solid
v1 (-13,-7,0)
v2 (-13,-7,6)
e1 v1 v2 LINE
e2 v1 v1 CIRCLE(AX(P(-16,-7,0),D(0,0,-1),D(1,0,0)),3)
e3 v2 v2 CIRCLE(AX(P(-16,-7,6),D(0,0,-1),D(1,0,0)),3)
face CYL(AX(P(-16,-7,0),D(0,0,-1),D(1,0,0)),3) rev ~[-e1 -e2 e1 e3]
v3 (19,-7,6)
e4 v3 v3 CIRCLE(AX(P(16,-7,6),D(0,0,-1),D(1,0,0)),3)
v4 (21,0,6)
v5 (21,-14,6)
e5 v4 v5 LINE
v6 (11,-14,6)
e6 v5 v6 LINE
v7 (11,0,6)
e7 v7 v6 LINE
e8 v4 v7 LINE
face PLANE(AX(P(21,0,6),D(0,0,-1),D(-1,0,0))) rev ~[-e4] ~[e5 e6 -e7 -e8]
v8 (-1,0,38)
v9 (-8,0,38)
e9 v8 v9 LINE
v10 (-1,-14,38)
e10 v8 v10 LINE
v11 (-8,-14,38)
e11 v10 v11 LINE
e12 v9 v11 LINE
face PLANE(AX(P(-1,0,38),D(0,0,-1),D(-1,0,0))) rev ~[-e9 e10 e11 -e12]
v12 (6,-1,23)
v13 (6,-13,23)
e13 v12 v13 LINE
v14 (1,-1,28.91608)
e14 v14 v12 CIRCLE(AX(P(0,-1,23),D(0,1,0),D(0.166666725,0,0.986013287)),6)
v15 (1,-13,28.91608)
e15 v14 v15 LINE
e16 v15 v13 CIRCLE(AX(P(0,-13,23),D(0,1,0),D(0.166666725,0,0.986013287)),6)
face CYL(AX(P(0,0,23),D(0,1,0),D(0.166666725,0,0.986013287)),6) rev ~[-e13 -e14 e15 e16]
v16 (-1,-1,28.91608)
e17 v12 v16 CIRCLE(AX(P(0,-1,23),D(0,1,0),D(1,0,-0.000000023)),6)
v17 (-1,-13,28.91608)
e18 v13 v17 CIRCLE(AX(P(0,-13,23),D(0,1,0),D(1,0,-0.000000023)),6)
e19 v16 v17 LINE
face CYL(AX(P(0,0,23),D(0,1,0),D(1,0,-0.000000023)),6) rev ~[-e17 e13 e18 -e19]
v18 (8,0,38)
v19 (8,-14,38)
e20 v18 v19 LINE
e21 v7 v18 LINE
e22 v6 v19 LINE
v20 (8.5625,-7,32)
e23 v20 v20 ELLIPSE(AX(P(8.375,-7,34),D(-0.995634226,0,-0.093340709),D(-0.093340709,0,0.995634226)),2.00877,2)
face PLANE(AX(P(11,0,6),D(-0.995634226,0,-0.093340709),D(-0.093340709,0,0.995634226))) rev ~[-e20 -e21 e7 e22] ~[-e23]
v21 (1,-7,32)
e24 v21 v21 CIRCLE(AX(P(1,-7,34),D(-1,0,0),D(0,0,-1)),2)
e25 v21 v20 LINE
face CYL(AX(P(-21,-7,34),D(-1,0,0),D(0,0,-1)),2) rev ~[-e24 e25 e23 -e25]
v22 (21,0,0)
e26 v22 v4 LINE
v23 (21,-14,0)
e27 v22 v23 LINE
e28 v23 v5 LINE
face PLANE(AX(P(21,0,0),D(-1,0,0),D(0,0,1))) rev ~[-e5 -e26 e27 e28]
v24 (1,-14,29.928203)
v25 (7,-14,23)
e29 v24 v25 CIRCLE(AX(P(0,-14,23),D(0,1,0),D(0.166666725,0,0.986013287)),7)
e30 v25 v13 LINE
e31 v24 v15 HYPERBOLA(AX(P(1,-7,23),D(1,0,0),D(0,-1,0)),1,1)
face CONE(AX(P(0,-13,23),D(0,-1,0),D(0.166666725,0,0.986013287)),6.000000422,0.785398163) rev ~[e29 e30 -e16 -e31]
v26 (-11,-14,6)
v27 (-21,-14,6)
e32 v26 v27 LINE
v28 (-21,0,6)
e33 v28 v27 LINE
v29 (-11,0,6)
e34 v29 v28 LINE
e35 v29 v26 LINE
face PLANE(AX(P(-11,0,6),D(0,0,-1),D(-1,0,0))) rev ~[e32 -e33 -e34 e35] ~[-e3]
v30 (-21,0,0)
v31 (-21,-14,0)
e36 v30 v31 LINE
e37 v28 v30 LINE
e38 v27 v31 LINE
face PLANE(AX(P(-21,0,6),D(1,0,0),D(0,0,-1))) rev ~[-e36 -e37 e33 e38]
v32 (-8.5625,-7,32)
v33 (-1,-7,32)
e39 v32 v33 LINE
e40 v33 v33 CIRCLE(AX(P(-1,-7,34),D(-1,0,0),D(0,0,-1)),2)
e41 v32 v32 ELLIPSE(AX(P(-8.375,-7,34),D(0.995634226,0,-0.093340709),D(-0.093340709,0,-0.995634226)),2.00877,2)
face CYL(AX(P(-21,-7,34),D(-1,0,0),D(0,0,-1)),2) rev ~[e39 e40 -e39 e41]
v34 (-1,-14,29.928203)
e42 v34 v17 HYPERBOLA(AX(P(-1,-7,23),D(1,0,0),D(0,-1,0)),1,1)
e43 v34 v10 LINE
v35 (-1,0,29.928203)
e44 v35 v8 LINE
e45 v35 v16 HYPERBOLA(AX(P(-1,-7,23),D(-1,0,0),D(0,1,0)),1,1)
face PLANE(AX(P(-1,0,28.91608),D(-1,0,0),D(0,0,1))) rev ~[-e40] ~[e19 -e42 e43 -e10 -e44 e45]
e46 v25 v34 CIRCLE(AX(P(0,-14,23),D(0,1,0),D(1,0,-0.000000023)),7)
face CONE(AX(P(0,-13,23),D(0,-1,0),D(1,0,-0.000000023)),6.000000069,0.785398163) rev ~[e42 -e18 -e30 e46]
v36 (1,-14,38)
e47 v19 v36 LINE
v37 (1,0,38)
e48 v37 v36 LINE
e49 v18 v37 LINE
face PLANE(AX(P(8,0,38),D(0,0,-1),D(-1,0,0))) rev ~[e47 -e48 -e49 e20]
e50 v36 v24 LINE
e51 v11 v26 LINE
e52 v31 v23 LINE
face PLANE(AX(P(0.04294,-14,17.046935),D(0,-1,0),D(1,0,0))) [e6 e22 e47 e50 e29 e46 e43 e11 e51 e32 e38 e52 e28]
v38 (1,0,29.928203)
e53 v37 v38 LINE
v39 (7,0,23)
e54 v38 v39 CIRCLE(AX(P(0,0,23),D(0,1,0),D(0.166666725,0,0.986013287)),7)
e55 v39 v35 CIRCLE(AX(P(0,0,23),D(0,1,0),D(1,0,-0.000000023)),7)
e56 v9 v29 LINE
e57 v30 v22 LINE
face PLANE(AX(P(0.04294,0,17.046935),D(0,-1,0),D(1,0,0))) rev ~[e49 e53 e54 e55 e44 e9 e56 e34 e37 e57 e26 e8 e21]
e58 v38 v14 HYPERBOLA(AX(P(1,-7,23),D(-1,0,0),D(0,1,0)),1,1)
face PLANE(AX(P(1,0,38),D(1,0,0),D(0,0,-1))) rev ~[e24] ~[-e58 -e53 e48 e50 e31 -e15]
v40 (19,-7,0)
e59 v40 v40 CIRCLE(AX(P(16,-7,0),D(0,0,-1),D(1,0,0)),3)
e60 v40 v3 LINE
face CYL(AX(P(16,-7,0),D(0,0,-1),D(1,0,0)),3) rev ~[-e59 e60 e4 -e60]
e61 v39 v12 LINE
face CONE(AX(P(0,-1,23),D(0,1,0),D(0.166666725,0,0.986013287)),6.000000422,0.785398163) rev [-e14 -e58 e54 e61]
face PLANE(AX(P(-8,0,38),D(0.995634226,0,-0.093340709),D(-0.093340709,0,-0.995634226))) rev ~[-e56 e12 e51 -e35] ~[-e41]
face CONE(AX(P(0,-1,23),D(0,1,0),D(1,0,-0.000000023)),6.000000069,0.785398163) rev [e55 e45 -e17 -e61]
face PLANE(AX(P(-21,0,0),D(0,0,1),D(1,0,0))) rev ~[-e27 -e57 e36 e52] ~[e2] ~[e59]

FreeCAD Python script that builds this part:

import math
import FreeCAD as App
import Part
import Sketcher


def edges_at(feature, points):
    """Names of the edges that pass closest to the given points."""
    edges = feature.Shape.Edges
    near = lambda p: min(range(len(edges)), key=lambda i: edges[i].distToShape(Part.Vertex(*p))[0])
    return sorted({f"Edge{near(p) + 1}" for p in points})

doc = App.newDocument("Part")
body = doc.addObject("PartDesign::Body", "Body")

# Sketch on XY plane
sketch1 = body.newObject("Sketcher::SketchObject", "Sketch")
sketch1.AttachmentSupport = (doc.getObject("XY_Plane"), [""])
sketch1.MapMode = "FlatFace"
sketch1.addGeometry(Part.LineSegment(App.Vector(-21, 6, 0), App.Vector(-21, 0, 0)), False)
sketch1.addGeometry(Part.LineSegment(App.Vector(-21, 0, 0), App.Vector(21, 0, 0)), False)
sketch1.addGeometry(Part.LineSegment(App.Vector(21, 0, 0), App.Vector(21, 6, 0)), False)
sketch1.addGeometry(Part.LineSegment(App.Vector(21, 6, 0), App.Vector(11, 6, 0)), False)
sketch1.addGeometry(Part.LineSegment(App.Vector(11, 6, 0), App.Vector(8, 38, 0)), False)
sketch1.addGeometry(Part.LineSegment(App.Vector(8, 38, 0), App.Vector(1, 38, 0)), False)
sketch1.addGeometry(Part.LineSegment(App.Vector(1, 38, 0), App.Vector(1, 29, 0)), False)
sketch1.addGeometry(Part.ArcOfCircle(Part.Circle(App.Vector(0, 23, 0), App.Vector(0, 0, 1), 6), math.radians(0), math.radians(80)), False)
sketch1.addGeometry(Part.ArcOfCircle(Part.Circle(App.Vector(0, 23, 0), App.Vector(0, 0, 1), 6), math.radians(100), math.radians(360)), False)
sketch1.addGeometry(Part.LineSegment(App.Vector(-1, 29, 0), App.Vector(-1, 38, 0)), False)
sketch1.addGeometry(Part.LineSegment(App.Vector(-1, 38, 0), App.Vector(-8, 38, 0)), False)
sketch1.addGeometry(Part.LineSegment(App.Vector(-8, 38, 0), App.Vector(-11, 6, 0)), False)
sketch1.addGeometry(Part.LineSegment(App.Vector(-11, 6, 0), App.Vector(-21, 6, 0)), False)
sketch1.addConstraint(Sketcher.Constraint("Coincident", 0, 2, 1, 1))
sketch1.addConstraint(Sketcher.Constraint("Coincident", 1, 2, 2, 1))
sketch1.addConstraint(Sketcher.Constraint("Coincident", 2, 2, 3, 1))
sketch1.addConstraint(Sketcher.Constraint("Coincident", 3, 2, 4, 1))
sketch1.addConstraint(Sketcher.Constraint("Coincident", 4, 2, 5, 1))
sketch1.addConstraint(Sketcher.Constraint("Coincident", 5, 2, 6, 1))
sketch1.addConstraint(Sketcher.Constraint("Coincident", 6, 2, 7, 2))
sketch1.addConstraint(Sketcher.Constraint("Tangent", 7, 1, 8, 2))
sketch1.addConstraint(Sketcher.Constraint("Coincident", 8, 1, 9, 1))
sketch1.addConstraint(Sketcher.Constraint("Coincident", 9, 2, 10, 1))
sketch1.addConstraint(Sketcher.Constraint("Coincident", 10, 2, 11, 1))
sketch1.addConstraint(Sketcher.Constraint("Coincident", 11, 2, 12, 1))
sketch1.addConstraint(Sketcher.Constraint("Coincident", 12, 2, 0, 1))
sketch1.addConstraint(Sketcher.Constraint("Vertical", 0))
sketch1.addConstraint(Sketcher.Constraint("Horizontal", 1))
sketch1.addConstraint(Sketcher.Constraint("Vertical", 2))
sketch1.addConstraint(Sketcher.Constraint("Horizontal", 3))
sketch1.addConstraint(Sketcher.Constraint("Horizontal", 5))
sketch1.addConstraint(Sketcher.Constraint("Vertical", 6))
sketch1.addConstraint(Sketcher.Constraint("Vertical", 9))
sketch1.addConstraint(Sketcher.Constraint("Horizontal", 10))
sketch1.addConstraint(Sketcher.Constraint("Horizontal", 12))
sketch1.addConstraint(Sketcher.Constraint("Equal", 7, 8))
sketch1.addConstraint(Sketcher.Constraint("Symmetric", 0, 2, 1, 2, -1, 1))
sketch1.addConstraint(Sketcher.Constraint("Symmetric", 6, 2, 8, 1, -2))
sketch1.addConstraint(Sketcher.Constraint("Symmetric", 4, 2, 10, 2, -2))
sketch1.addConstraint(Sketcher.Constraint("Symmetric", 3, 2, 11, 2, -2))
sketch1.addConstraint(Sketcher.Constraint("Horizontal", 8, 3, 7, 1))
sketch1.addConstraint(Sketcher.Constraint("Radius", 7, 6.0))
sketch1.addConstraint(Sketcher.Constraint("DistanceX", 1, 1, 1, 2, 42.0))
sketch1.addConstraint(Sketcher.Constraint("DistanceX", 3, 2, 3, 1, 10.0))
sketch1.addConstraint(Sketcher.Constraint("DistanceX", 5, 2, 5, 1, 7.0))
sketch1.addConstraint(Sketcher.Constraint("DistanceY", 0, 2, 0, 1, 6.0))
sketch1.addConstraint(Sketcher.Constraint("DistanceY", -1, 1, 7, 3, 23.0))
sketch1.addConstraint(Sketcher.Constraint("DistanceX", -1, 1, 4, 2, 8.0))
sketch1.addConstraint(Sketcher.Constraint("DistanceY", -1, 1, 4, 2, 38.0))
pad1 = body.newObject("PartDesign::Pad", "Pad")
pad1.Profile = sketch1
pad1.Length = 14

# Sketch on XZ plane
sketch2 = body.newObject("Sketcher::SketchObject", "Sketch001")
sketch2.AttachmentSupport = (doc.getObject("XZ_Plane"), [""])
sketch2.MapMode = "FlatFace"
sketch2.addGeometry(Part.Circle(App.Vector(-16, 7, 0), App.Vector(0, 0, 1), 3), False)
sketch2.addGeometry(Part.Circle(App.Vector(16, 7, 0), App.Vector(0, 0, 1), 3), False)
sketch2.addConstraint(Sketcher.Constraint("Equal", 0, 1))
sketch2.addConstraint(Sketcher.Constraint("Symmetric", 0, 3, 1, 3, -2))
sketch2.addConstraint(Sketcher.Constraint("Diameter", 0, 6.0))
sketch2.addConstraint(Sketcher.Constraint("DistanceX", 0, 3, -1, 1, 16.0))
sketch2.addConstraint(Sketcher.Constraint("DistanceY", -1, 1, 0, 3, 7.0))
pocket1 = body.newObject("PartDesign::Pocket", "Pocket")
pocket1.Profile = sketch2
pocket1.Type = "ThroughAll"
doc.recompute()

chamfer = body.newObject("PartDesign::Chamfer", "Chamfer")
chamfer.Base = (pocket1, edges_at(pocket1, [(-3.873, 18.417, 14), (-3.873, 18.417, 0)]))
chamfer.Size = 1

# Sketch on YZ plane
sketch3 = body.newObject("Sketcher::SketchObject", "Sketch002")
sketch3.AttachmentSupport = (doc.getObject("YZ_Plane"), [""])
sketch3.MapMode = "FlatFace"
sketch3.AttachmentOffset = App.Placement(App.Vector(0, 0, -21), App.Rotation())
sketch3.addGeometry(Part.Circle(App.Vector(34, 7, 0), App.Vector(0, 0, 1), 2), False)
sketch3.addConstraint(Sketcher.Constraint("Diameter", 0, 4.0))
sketch3.addConstraint(Sketcher.Constraint("DistanceX", -1, 1, 0, 3, 34.0))
sketch3.addConstraint(Sketcher.Constraint("DistanceY", -1, 1, 0, 3, 7.0))
pocket2 = body.newObject("PartDesign::Pocket", "Pocket001")
pocket2.Profile = sketch3
pocket2.Type = "ThroughAll"
pocket2.Reversed = True
body2 = doc.addObject("PartDesign::Body", "Body001")
doc.recompute()

body.Placement = App.Placement(App.Vector(0, 0, 0), App.Rotation(App.Vector(1, 0, 0), 90))
boolean = body2.newObject("PartDesign::Boolean", "Boolean")
boolean.Type = "Fuse"
boolean.addObjects([body])

doc.recompute()
